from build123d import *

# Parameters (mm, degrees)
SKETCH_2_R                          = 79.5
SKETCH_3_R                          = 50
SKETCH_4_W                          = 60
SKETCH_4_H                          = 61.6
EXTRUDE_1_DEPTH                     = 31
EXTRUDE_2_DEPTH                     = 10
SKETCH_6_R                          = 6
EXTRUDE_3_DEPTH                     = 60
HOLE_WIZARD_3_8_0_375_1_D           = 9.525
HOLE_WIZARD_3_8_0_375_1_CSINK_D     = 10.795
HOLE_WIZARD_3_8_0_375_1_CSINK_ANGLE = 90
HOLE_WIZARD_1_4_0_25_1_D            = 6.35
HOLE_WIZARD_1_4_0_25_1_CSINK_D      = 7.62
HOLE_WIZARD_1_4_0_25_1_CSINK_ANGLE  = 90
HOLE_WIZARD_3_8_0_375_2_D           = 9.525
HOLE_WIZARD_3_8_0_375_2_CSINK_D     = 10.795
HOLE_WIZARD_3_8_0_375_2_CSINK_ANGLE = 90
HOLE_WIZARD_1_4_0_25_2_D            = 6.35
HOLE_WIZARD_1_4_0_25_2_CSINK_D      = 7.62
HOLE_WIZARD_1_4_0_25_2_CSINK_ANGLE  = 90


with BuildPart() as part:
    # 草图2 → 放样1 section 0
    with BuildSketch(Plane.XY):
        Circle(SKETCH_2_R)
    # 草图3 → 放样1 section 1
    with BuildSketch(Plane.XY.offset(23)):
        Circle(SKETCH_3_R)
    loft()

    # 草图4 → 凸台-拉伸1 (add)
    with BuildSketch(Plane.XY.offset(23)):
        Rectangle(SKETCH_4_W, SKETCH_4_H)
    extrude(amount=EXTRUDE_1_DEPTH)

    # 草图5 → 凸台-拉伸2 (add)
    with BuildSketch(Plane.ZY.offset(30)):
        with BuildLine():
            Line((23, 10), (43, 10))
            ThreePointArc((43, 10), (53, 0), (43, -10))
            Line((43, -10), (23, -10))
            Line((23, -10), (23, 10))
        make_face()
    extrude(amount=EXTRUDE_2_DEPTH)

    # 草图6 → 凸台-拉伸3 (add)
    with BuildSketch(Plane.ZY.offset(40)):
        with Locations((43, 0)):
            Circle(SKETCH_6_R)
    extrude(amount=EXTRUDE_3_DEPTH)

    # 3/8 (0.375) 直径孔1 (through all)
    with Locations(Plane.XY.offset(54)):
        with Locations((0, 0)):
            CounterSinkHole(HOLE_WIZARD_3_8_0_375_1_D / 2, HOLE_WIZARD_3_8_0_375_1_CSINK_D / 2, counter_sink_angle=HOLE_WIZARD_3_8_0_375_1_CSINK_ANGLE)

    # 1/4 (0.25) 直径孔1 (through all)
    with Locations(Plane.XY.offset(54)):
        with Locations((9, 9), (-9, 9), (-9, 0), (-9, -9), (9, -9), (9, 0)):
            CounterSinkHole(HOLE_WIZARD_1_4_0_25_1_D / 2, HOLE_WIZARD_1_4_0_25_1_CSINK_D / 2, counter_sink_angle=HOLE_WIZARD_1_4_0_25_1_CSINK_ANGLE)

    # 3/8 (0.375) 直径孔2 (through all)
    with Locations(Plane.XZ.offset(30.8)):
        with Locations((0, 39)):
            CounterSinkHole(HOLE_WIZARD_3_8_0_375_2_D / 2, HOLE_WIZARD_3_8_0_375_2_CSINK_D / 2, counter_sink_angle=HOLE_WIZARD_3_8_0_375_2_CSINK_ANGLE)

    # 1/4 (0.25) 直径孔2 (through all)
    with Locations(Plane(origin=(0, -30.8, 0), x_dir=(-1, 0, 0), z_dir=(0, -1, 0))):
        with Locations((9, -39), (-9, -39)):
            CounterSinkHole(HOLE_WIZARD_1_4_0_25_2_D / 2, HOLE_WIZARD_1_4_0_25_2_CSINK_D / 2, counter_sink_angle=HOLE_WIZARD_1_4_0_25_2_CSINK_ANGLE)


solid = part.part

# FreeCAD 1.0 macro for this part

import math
import FreeCAD as App
import Part
import Sketcher

V = App.Vector


def add_polygon(sketch, points):
    """Adds a closed chain of lines whose ends are joined by coincident constraints."""
    first, n = sketch.GeometryCount, len(points)
    for a, b in zip(points, points[1:] + points[:1]):
        sketch.addGeometry(Part.LineSegment(App.Vector(*a, 0), App.Vector(*b, 0)), False)
    for i in range(n):
        sketch.addConstraint(Sketcher.Constraint("Coincident", first + i, 2, first + (i + 1) % n, 1))

doc = App.newDocument("Part")
params = doc.addObject("Spreadsheet::Sheet", "Params")
for row, (alias, value) in enumerate([
    ("sketch1_diameter", "159 mm"),
    ("sketch2_diameter", "100 mm"),
    ("sketch3_width", "60 mm"),
    ("sketch3_height", "61.6 mm"),
    ("pad1_length", "31 mm"),
    ("sketch4_radius", "10 mm"),
    ("pad2_length", "10 mm"),
    ("sketch5_diameter", "12 mm"),
    ("pad3_length", "60 mm"),
    ("hole_diameter", "9.525 mm"),
    ("hole_csink_diameter", "10.795 mm"),
    ("sketch7_diameter", "6.35 mm"),
    ("hole2_diameter", "6.35 mm"),
    ("hole2_csink_diameter", "7.62 mm"),
    ("hole3_diameter", "9.525 mm"),
    ("hole3_csink_diameter", "10.795 mm"),
    ("sketch9_diameter", "6.35 mm"),
    ("hole4_diameter", "6.35 mm"),
    ("hole4_csink_diameter", "7.62 mm"),
], start=1):
    params.set(f"A{row}", alias)
    params.set(f"B{row}", "=" + value)
    params.setAlias(f"B{row}", alias)

body = doc.addObject("PartDesign::Body", "Body")

sketch1 = body.newObject("Sketcher::SketchObject", "Sketch")
sketch1.AttachmentSupport = (doc.getObject("XY_Plane"), [""])
sketch1.MapMode = "FlatFace"
sketch1.addGeometry(Part.Circle(V(0, 0, 0), V(0, 0, 1), 80), False)
sketch1.addConstraint([
    Sketcher.Constraint("Coincident", 0, 3, -1, 1),
    Sketcher.Constraint("Diameter", 0, 159.0),
])
sketch1.setExpression("Constraints[1]", "Params.sketch1_diameter")

sketch2 = body.newObject("Sketcher::SketchObject", "Sketch001")
sketch2.AttachmentSupport = (doc.getObject("XY_Plane"), [""])
sketch2.MapMode = "FlatFace"
sketch2.AttachmentOffset = App.Placement(V(0, 0, 23), App.Rotation())
sketch2.addGeometry(Part.Circle(V(0, 0, 0), V(0, 0, 1), 50), False)
sketch2.addConstraint([
    Sketcher.Constraint("Coincident", 0, 3, -1, 1),
    Sketcher.Constraint("Diameter", 0, 100.0),
])
sketch2.setExpression("Constraints[1]", "Params.sketch2_diameter")

additiveloft = body.newObject("PartDesign::AdditiveLoft", "AdditiveLoft")
additiveloft.Profile = sketch1
additiveloft.Sections = [sketch2]

sketch3 = body.newObject("Sketcher::SketchObject", "Sketch002")
sketch3.AttachmentSupport = (doc.getObject("XY_Plane"), [""])
sketch3.MapMode = "FlatFace"
sketch3.AttachmentOffset = App.Placement(V(0, 0, 23), App.Rotation())
add_polygon(sketch3, [(-30, 31), (-30, -31), (30, -31), (30, 31)])
sketch3.addConstraint([
    Sketcher.Constraint("Vertical", 0),
    Sketcher.Constraint("Horizontal", 1),
    Sketcher.Constraint("Vertical", 2),
    Sketcher.Constraint("Horizontal", 3),
    Sketcher.Constraint("Symmetric", 0, 2, 2, 2, -1, 1),
    Sketcher.Constraint("DistanceX", 1, 1, 1, 2, 60.0),
    Sketcher.Constraint("DistanceY", 0, 2, 0, 1, 61.6),
])
sketch3.setExpression("Constraints[9]", "Params.sketch3_width")
sketch3.setExpression("Constraints[10]", "Params.sketch3_height")
pad1 = body.newObject("PartDesign::Pad", "Pad")
pad1.Profile = sketch3
pad1.setExpression("Length", "Params.pad1_length")

sketch4 = body.newObject("Sketcher::SketchObject", "Sketch003")
sketch4.AttachmentSupport = (doc.getObject("YZ_Plane"), [""])
sketch4.MapMode = "FlatFace"
sketch4.AttachmentOffset = App.Placement(V(0, 0, -30), App.Rotation())
sketch4.addGeometry([
    Part.LineSegment(V(10, 43, 0), V(10, 23, 0)),
    Part.LineSegment(V(10, 23, 0), V(-10, 23, 0)),
    Part.LineSegment(V(-10, 23, 0), V(-10, 43, 0)),
    Part.ArcOfCircle(Part.Circle(V(0, 43, 0), V(0, 0, 1), 10), math.radians(0), math.radians(180)),
], False)
sketch4.addConstraint([
    Sketcher.Constraint("Coincident", 0, 2, 1, 1),
    Sketcher.Constraint("Coincident", 1, 2, 2, 1),
    Sketcher.Constraint("Tangent", 2, 2, 3, 2),
    Sketcher.Constraint("Tangent", 3, 1, 0, 1),
    Sketcher.Constraint("Vertical", 0),
    Sketcher.Constraint("Horizontal", 1),
    Sketcher.Constraint("Vertical", 2),
    Sketcher.Constraint("PointOnObject", 3, 3, -2),
    Sketcher.Constraint("Equal", 1, 0),
    Sketcher.Constraint("Radius", 3, 10.0),
    Sketcher.Constraint("DistanceY", -1, 1, 3, 3, 43.0),
])
sketch4.setExpression("Constraints[9]", "Params.sketch4_radius")
pad2 = body.newObject("PartDesign::Pad", "Pad001")
pad2.Profile = sketch4
pad2.setExpression("Length", "Params.pad2_length")
pad2.Reversed = True

sketch5 = body.newObject("Sketcher::SketchObject", "Sketch004")
sketch5.AttachmentSupport = (doc.getObject("YZ_Plane"), [""])
sketch5.MapMode = "FlatFace"
sketch5.AttachmentOffset = App.Placement(V(0, 0, -40), App.Rotation())
sketch5.addGeometry(Part.Circle(V(0, 43, 0), V(0, 0, 1), 6), False)
sketch5.addConstraint([
    Sketcher.Constraint("PointOnObject", 0, 3, -2),
    Sketcher.Constraint("Diameter", 0, 12.0),
    Sketcher.Constraint("DistanceY", -1, 1, 0, 3, 43.0),
])
sketch5.setExpression("Constraints[1]", "Params.sketch5_diameter")
pad3 = body.newObject("PartDesign::Pad", "Pad002")
pad3.Profile = sketch5
pad3.setExpression("Length", "Params.pad3_length")
pad3.Reversed = True

sketch6 = body.newObject("Sketcher::SketchObject", "Sketch005")
sketch6.AttachmentSupport = (doc.getObject("XY_Plane"), [""])
sketch6.MapMode = "FlatFace"
sketch6.AttachmentOffset = App.Placement(V(0, 0, 54), App.Rotation())
sketch6.addGeometry(Part.Circle(V(0, 0, 0), V(0, 0, 1), 4.8), False)
sketch6.addConstraint([
    Sketcher.Constraint("Coincident", 0, 3, -1, 1),
    Sketcher.Constraint("Diameter", 0, 9.525),
])
doc.recompute()
hole = body.newObject("PartDesign::Hole", "Hole")
hole.Profile = sketch6
hole.ThreadType = "None"
hole.setExpression("Diameter", "Params.hole_diameter")
hole.DepthType = "ThroughAll"
hole.HoleCutType = "Countersink"
hole.setExpression("HoleCutDiameter", "Params.hole_csink_diameter")
hole.HoleCutCountersinkAngle = 90

sketch7 = body.newObject("Sketcher::SketchObject", "Sketch006")
sketch7.AttachmentSupport = (doc.getObject("XY_Plane"), [""])
sketch7.MapMode = "FlatFace"
sketch7.AttachmentOffset = App.Placement(V(0, 0, 54), App.Rotation())
sketch7.addGeometry([
    Part.Circle(V(9, 9, 0), V(0, 0, 1), 3.2),
    Part.Circle(V(-9, 9, 0), V(0, 0, 1), 3.2),
    Part.Circle(V(-9, 0, 0), V(0, 0, 1), 3.2),
    Part.Circle(V(-9, -9, 0), V(0, 0, 1), 3.2),
    Part.Circle(V(9, -9, 0), V(0, 0, 1), 3.2),
    Part.Circle(V(9, 0, 0), V(0, 0, 1), 3.2),
], False)
sketch7.addConstraint([
    Sketcher.Constraint("Equal", 0, 1),
    Sketcher.Constraint("Equal", 1, 2),
    Sketcher.Constraint("Equal", 2, 3),
    Sketcher.Constraint("Equal", 3, 4),
    Sketcher.Constraint("Equal", 4, 5),
    Sketcher.Constraint("Symmetric", 0, 3, 3, 3, -1, 1),
    Sketcher.Constraint("Symmetric", 1, 3, 4, 3, -1, 1),
    Sketcher.Constraint("Symmetric", 2, 3, 5, 3, -1, 1),
    Sketcher.Constraint("Symmetric", 0, 3, 1, 3, -2),
    Sketcher.Constraint("PointOnObject", 2, 3, -1),
    Sketcher.Constraint("Vertical", 1, 3, 2, 3),
    Sketcher.Constraint("Diameter", 0, 6.35),
    Sketcher.Constraint("DistanceX", -1, 1, 0, 3, 9.0),
    Sketcher.Constraint("DistanceY", -1, 1, 0, 3, 9.0),
])
sketch7.setExpression("Constraints[11]", "Params.sketch7_diameter")
doc.recompute()
hole2 = body.newObject("PartDesign::Hole", "Hole001")
hole2.Profile = sketch7
hole2.ThreadType = "None"
hole2.setExpression("Diameter", "Params.hole2_diameter")
hole2.DepthType = "ThroughAll"
hole2.HoleCutType = "Countersink"
hole2.setExpression("HoleCutDiameter", "Params.hole2_csink_diameter")
hole2.HoleCutCountersinkAngle = 90

sketch8 = body.newObject("Sketcher::SketchObject", "Sketch007")
sketch8.AttachmentSupport = (doc.getObject("XZ_Plane"), [""])
sketch8.MapMode = "FlatFace"
sketch8.AttachmentOffset = App.Placement(V(0, 0, 30.8), App.Rotation())
sketch8.addGeometry(Part.Circle(V(0, 39, 0), V(0, 0, 1), 4.8), False)
sketch8.addConstraint([
    Sketcher.Constraint("PointOnObject", 0, 3, -2),
    Sketcher.Constraint("Diameter", 0, 9.525),
    Sketcher.Constraint("DistanceY", -1, 1, 0, 3, 39.0),
])
doc.recompute()
hole3 = body.newObject("PartDesign::Hole", "Hole002")
hole3.Profile = sketch8
hole3.ThreadType = "None"
hole3.setExpression("Diameter", "Params.hole3_diameter")
hole3.DepthType = "ThroughAll"
hole3.HoleCutType = "Countersink"
hole3.setExpression("HoleCutDiameter", "Params.hole3_csink_diameter")
hole3.HoleCutCountersinkAngle = 90

sketch9 = body.newObject("Sketcher::SketchObject", "Sketch008")
sketch9.AttachmentSupport = (doc.getObject("XZ_Plane"), [""])
sketch9.MapMode = "FlatFace"
sketch9.AttachmentOffset = App.Placement(V(0, 0, 30.8), App.Rotation())
sketch9.addGeometry([
    Part.Circle(V(-9, 39, 0), V(0, 0, 1), 3.2),
    Part.Circle(V(9, 39, 0), V(0, 0, 1), 3.2),
], False)
sketch9.addConstraint([
    Sketcher.Constraint("Equal", 0, 1),
    Sketcher.Constraint("Symmetric", 0, 3, 1, 3, -2),
    Sketcher.Constraint("Diameter", 0, 6.35),
    Sketcher.Constraint("DistanceX", 0, 3, -1, 1, 9.0),
    Sketcher.Constraint("DistanceY", -1, 1, 0, 3, 39.0),
])
sketch9.setExpression("Constraints[2]", "Params.sketch9_diameter")
doc.recompute()
hole4 = body.newObject("PartDesign::Hole", "Hole003")
hole4.Profile = sketch9
hole4.ThreadType = "None"
hole4.setExpression("Diameter", "Params.hole4_diameter")
hole4.DepthType = "ThroughAll"
hole4.HoleCutType = "Countersink"
hole4.setExpression("HoleCutDiameter", "Params.hole4_csink_diameter")
hole4.HoleCutCountersinkAngle = 90

doc.recompute()
